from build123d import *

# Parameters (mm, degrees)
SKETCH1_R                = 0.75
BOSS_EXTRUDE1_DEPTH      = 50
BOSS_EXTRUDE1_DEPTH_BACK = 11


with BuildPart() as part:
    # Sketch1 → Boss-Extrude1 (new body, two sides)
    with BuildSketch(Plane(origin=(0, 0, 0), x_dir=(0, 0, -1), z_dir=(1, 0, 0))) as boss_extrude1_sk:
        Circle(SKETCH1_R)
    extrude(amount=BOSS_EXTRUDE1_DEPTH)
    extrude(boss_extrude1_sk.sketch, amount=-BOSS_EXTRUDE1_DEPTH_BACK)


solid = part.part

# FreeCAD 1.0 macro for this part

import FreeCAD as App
import Part
import Sketcher

V = App.Vector

doc = App.newDocument("Part")
body = doc.addObject("PartDesign::Body", "Body")

# Sketch on YZ plane
sketch1 = doc.addObject("Sketcher::SketchObject", "Sketch")
body.addObject(sketch1)
sketch1.AttachmentSupport = (doc.YZ_Plane, [""])
sketch1.MapMode = "FlatFace"
sketch1.addGeometry(Part.Circle(V(0, 0, 0), V(0, 0, 1), 0.75), False)
sketch1.addConstraint([
    Sketcher.Constraint("Coincident", 0, 3, -1, 1),
    Sketcher.Constraint("Diameter", 0, 1.5),
])
pad1 = doc.addObject("PartDesign::Pad", "Pad")
body.addObject(pad1)
pad1.Profile = sketch1
pad1.Type = "TwoLengths"
pad1.Length = 50
pad1.Length2 = 11

doc.recompute()
